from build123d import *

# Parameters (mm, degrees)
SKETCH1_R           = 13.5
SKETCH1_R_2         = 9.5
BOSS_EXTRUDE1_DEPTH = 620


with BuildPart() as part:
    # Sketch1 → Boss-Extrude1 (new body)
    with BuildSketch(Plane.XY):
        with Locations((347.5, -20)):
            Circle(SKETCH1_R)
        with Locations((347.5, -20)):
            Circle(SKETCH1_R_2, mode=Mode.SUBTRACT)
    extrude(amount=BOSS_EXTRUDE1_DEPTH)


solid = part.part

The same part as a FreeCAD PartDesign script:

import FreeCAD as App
import Part
import Sketcher

doc = App.newDocument("Part")
body = doc.addObject("PartDesign::Body", "Body")

# Sketch on XY plane
sketch1 = body.newObject("Sketcher::SketchObject", "Sketch")
sketch1.AttachmentSupport = (doc.getObject("XY_Plane"), [""])
sketch1.MapMode = "FlatFace"
sketch1.addGeometry(Part.Circle(App.Vector(347.5, -20, 0), App.Vector(0, 0, 1), 13.5), False)
sketch1.addGeometry(Part.Circle(App.Vector(347.5, -20, 0), App.Vector(0, 0, 1), 9.5), False)
sketch1.addConstraint(Sketcher.Constraint("Coincident", 1, 3, 0, 3))
sketch1.addConstraint(Sketcher.Constraint("Diameter", 0, 27.0))
sketch1.addConstraint(Sketcher.Constraint("Diameter", 1, 19.0))
sketch1.addConstraint(Sketcher.Constraint("DistanceY", 0, 3, -1, 1, 20.0))
sketch1.addConstraint(Sketcher.Constraint("DistanceX", -1, 1, 0, 3, 347.5))
pad1 = body.newObject("PartDesign::Pad", "Pad")
pad1.Profile = sketch1
pad1.Length = 620

doc.recompute()
